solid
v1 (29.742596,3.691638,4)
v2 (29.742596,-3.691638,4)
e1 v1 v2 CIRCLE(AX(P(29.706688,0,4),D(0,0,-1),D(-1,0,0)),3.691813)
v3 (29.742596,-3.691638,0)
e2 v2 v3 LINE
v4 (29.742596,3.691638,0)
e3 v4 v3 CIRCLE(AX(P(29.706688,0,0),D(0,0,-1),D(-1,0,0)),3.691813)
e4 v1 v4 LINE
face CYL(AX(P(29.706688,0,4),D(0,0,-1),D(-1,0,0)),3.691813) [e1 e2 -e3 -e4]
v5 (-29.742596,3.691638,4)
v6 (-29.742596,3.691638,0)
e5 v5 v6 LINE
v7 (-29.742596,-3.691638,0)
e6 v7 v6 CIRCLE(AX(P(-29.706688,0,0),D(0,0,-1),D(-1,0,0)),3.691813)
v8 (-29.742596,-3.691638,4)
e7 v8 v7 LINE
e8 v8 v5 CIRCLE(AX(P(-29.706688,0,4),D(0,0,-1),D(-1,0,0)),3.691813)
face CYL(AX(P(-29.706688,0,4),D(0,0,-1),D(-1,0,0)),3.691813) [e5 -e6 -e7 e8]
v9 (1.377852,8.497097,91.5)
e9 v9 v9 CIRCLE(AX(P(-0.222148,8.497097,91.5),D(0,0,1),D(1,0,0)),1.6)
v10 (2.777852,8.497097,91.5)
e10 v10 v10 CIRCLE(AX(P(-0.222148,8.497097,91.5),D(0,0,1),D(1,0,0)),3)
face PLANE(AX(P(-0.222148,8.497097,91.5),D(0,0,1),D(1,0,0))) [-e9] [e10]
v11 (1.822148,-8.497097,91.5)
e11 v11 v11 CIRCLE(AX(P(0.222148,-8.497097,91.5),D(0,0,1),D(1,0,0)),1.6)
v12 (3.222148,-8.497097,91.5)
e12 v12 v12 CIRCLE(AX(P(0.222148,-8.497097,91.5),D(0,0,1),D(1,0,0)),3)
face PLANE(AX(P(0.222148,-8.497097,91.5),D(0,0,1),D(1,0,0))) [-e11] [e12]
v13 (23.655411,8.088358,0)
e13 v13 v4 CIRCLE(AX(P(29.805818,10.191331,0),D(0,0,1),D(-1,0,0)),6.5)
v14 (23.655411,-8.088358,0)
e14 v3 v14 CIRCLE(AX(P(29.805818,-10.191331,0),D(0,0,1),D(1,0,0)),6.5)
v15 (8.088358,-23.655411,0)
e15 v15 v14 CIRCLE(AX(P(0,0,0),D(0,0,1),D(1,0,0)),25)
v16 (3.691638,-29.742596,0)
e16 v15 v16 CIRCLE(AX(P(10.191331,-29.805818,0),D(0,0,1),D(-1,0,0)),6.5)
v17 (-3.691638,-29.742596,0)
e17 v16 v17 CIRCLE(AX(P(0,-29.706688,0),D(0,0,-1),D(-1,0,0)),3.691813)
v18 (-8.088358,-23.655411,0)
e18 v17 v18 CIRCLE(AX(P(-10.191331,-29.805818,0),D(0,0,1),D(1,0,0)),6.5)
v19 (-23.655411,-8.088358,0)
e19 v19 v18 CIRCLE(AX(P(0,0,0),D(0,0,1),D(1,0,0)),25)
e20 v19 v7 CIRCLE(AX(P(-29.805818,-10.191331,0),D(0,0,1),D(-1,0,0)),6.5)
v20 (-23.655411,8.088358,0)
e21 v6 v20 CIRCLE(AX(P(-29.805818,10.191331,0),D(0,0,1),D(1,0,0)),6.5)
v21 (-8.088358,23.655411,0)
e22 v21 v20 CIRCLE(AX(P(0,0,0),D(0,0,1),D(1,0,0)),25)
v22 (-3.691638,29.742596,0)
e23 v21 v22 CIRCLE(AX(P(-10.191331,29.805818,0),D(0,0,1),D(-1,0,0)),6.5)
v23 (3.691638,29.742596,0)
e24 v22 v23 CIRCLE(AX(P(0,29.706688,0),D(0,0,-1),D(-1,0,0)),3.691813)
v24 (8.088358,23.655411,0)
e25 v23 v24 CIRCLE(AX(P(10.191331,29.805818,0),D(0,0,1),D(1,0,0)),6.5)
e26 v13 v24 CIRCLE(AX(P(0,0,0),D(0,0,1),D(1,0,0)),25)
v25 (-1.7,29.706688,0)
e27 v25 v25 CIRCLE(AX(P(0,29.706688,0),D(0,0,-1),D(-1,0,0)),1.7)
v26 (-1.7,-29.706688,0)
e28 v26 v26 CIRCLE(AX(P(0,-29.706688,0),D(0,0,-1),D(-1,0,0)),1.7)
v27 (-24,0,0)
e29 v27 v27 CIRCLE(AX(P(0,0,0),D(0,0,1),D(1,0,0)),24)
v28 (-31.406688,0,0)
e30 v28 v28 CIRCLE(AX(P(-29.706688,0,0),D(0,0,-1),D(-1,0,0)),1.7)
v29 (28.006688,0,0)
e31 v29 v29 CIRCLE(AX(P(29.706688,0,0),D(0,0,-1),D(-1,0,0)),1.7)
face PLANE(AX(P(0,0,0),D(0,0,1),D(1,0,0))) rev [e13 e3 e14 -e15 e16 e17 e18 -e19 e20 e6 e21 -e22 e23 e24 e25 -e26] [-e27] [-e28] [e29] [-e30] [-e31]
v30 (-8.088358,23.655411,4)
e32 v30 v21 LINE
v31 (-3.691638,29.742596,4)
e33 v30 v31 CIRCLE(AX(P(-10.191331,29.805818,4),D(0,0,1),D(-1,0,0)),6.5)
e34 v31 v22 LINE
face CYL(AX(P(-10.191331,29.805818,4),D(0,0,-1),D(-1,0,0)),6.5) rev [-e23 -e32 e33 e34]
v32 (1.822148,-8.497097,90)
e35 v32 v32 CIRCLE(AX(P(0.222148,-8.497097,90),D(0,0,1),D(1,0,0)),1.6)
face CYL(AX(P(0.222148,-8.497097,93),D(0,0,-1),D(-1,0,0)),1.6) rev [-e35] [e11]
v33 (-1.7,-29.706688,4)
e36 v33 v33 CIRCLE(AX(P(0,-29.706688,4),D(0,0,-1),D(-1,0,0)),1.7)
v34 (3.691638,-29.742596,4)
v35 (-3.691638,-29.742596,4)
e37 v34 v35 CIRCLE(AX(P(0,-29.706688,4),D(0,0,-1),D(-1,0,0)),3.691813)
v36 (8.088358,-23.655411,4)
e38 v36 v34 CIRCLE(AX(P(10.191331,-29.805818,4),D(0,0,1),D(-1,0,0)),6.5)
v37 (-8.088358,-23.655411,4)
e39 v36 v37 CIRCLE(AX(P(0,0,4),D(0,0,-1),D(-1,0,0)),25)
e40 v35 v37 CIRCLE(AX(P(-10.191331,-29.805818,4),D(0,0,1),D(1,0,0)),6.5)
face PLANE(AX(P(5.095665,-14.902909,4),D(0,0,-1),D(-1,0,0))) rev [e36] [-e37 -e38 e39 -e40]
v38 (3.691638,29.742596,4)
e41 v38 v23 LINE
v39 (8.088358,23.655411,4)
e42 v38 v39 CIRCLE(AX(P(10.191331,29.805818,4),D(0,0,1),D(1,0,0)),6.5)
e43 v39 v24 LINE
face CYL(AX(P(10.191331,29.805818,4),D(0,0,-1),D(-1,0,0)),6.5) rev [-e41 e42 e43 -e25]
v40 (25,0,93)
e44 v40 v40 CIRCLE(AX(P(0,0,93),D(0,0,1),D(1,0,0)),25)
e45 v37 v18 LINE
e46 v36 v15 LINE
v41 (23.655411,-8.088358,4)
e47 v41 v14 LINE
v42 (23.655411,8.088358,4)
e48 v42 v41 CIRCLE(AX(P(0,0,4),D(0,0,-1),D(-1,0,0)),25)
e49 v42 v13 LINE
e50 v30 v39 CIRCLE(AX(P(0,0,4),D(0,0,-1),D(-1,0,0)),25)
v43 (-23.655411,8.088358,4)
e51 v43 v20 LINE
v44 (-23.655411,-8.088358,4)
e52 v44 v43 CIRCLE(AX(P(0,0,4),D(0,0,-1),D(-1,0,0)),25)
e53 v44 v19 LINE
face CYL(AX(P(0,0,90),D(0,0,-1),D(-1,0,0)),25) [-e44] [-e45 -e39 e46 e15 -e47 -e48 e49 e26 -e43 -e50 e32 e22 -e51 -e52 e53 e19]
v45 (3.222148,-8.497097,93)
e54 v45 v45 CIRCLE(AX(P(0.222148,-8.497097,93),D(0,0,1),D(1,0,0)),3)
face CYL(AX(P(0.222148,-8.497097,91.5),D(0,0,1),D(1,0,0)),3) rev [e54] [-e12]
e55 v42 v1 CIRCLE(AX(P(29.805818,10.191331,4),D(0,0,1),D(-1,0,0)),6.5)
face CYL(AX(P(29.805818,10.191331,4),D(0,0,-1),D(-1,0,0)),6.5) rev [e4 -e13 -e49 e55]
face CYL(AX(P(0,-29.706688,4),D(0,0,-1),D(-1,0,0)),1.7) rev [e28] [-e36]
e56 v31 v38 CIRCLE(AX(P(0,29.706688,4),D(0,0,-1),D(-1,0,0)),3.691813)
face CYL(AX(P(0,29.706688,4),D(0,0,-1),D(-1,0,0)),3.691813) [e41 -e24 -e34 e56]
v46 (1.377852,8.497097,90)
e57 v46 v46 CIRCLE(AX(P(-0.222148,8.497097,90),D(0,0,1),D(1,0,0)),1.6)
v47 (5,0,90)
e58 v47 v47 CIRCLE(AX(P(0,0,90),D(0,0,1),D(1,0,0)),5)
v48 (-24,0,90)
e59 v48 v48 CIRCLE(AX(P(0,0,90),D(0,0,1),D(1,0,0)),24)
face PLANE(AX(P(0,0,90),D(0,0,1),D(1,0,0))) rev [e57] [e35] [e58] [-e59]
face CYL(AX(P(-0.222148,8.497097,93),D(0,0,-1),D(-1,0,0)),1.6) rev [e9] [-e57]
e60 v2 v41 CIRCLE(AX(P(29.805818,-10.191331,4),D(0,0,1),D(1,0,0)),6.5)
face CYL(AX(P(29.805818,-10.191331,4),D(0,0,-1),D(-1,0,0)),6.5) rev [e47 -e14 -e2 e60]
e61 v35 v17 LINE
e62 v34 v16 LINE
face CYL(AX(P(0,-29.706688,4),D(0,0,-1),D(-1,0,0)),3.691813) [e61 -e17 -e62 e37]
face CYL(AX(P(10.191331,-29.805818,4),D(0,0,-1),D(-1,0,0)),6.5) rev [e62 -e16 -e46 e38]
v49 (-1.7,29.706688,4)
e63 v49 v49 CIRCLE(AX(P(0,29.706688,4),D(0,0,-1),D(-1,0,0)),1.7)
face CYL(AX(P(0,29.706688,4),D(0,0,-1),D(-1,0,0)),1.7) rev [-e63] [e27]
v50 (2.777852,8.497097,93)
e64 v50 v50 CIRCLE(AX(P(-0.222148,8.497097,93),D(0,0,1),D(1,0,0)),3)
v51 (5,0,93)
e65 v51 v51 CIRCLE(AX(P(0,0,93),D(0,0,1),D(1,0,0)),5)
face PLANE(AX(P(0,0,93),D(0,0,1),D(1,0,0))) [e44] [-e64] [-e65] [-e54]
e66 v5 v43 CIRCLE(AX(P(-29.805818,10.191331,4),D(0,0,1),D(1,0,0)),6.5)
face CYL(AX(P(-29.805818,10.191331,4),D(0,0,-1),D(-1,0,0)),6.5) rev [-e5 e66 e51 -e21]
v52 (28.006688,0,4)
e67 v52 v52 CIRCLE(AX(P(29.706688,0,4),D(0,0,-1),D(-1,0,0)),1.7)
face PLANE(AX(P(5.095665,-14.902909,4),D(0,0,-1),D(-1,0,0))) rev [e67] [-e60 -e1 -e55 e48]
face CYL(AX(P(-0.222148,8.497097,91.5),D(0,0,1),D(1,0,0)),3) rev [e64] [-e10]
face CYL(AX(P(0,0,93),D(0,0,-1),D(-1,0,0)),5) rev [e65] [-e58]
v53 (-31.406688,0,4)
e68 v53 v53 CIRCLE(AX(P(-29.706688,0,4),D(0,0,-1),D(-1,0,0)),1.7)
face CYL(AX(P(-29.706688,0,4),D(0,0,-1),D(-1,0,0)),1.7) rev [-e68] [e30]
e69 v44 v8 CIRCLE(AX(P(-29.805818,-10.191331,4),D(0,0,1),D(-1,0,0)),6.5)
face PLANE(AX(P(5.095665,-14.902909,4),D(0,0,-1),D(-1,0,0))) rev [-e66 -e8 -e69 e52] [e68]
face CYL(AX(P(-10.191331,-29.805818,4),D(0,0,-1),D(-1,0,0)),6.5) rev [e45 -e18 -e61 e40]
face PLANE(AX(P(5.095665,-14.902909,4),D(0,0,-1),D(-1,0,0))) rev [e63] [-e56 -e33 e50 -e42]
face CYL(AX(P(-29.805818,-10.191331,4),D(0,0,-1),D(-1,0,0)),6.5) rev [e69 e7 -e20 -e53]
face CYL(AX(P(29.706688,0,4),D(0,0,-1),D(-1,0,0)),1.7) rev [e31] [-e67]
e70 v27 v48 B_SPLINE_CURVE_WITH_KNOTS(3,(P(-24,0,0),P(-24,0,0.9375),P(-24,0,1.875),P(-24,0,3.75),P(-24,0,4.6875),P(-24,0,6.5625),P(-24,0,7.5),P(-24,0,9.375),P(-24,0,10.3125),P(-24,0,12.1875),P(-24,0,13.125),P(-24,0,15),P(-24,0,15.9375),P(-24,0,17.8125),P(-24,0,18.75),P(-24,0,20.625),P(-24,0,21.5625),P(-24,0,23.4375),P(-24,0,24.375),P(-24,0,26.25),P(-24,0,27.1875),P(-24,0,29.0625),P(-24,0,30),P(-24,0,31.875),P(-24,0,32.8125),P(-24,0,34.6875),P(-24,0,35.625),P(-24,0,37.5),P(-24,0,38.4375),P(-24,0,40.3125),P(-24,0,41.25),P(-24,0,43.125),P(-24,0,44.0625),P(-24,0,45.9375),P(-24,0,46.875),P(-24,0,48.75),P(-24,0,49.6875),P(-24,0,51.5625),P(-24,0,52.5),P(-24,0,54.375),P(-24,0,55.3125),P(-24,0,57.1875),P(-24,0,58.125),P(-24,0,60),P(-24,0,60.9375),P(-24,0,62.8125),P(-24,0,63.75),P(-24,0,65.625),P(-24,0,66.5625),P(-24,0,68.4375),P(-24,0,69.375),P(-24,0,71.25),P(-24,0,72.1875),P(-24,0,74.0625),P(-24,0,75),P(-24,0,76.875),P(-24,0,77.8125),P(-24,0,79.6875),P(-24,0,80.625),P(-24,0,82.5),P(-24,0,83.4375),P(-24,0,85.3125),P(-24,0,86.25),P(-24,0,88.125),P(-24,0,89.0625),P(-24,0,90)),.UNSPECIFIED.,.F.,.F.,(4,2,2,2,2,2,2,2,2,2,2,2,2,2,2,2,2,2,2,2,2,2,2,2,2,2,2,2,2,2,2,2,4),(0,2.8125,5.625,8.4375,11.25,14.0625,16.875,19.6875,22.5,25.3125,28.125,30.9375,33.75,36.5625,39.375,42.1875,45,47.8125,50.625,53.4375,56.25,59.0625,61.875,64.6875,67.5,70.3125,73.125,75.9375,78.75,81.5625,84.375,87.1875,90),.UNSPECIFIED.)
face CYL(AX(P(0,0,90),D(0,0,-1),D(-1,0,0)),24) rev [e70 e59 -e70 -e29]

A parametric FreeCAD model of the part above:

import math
import FreeCAD as App
import Part
import Sketcher
from FreeCAD import Vector

doc = App.newDocument("Part")
body = doc.addObject("PartDesign::Body", "Body")

# Sketch on XY plane
sketch1 = body.newObject("Sketcher::SketchObject", "Sketch")
sketch1.AttachmentSupport = (doc.getObject("XY_Plane"), [""])
sketch1.MapMode = "FlatFace"
sketch1.addGeometry(Part.Circle(Vector(0, 0, 0), Vector(0, 0, 1), 25), False)
sketch1.addGeometry(Part.Circle(Vector(0, 0, 0), Vector(0, 0, 1), 24), False)
sketch1.addConstraint(Sketcher.Constraint("Coincident", 0, 3, -1, 1))
sketch1.addConstraint(Sketcher.Constraint("Coincident", 1, 3, -1, 1))
sketch1.addConstraint(Sketcher.Constraint("Diameter", 0, 50.0))
sketch1.addConstraint(Sketcher.Constraint("Diameter", 1, 48.0))
pad1 = body.newObject("PartDesign::Pad", "Pad")
pad1.Profile = sketch1
pad1.Length = 90

# Sketch on XY plane
sketch2 = body.newObject("Sketcher::SketchObject", "Sketch001")
sketch2.AttachmentSupport = (doc.getObject("XY_Plane"), [""])
sketch2.MapMode = "FlatFace"
sketch2.AttachmentOffset = App.Placement(Vector(0, 0, 90), App.Rotation())
sketch2.addGeometry(Part.Circle(Vector(0, 0, 0), Vector(0, 0, 1), 25), False)
sketch2.addGeometry(Part.Circle(Vector(-0.2, 8.5, 0), Vector(0, 0, 1), 1.6), False)
sketch2.addGeometry(Part.Circle(Vector(0.2, -8.5, 0), Vector(0, 0, 1), 1.6), False)
sketch2.addGeometry(Part.Circle(Vector(0, 0, 0), Vector(0, 0, 1), 5), False)
sketch2.addConstraint(Sketcher.Constraint("Coincident", 0, 3, -1, 1))
sketch2.addConstraint(Sketcher.Constraint("Coincident", 3, 3, -1, 1))
sketch2.addConstraint(Sketcher.Constraint("Equal", 1, 2))
sketch2.addConstraint(Sketcher.Constraint("Symmetric", 1, 3, 2, 3, -1, 1))
sketch2.addConstraint(Sketcher.Constraint("Diameter", 0, 50.0))
sketch2.addConstraint(Sketcher.Constraint("Diameter", 3, 10.0))
sketch2.addConstraint(Sketcher.Constraint("Diameter", 1, 3.2))
sketch2.addConstraint(Sketcher.Constraint("DistanceX", 1, 3, -1, 1, 0.222148))
sketch2.addConstraint(Sketcher.Constraint("DistanceY", -1, 1, 1, 3, 8.497097))
pad2 = body.newObject("PartDesign::Pad", "Pad001")
pad2.Profile = sketch2
pad2.Length = 3

# Sketch on XY plane
sketch3 = body.newObject("Sketcher::SketchObject", "Sketch002")
sketch3.AttachmentSupport = (doc.getObject("XY_Plane"), [""])
sketch3.MapMode = "FlatFace"
sketch3.AttachmentOffset = App.Placement(Vector(0, 0, 93), App.Rotation())
sketch3.addGeometry(Part.Circle(Vector(-0.2, 8.5, 0), Vector(0, 0, 1), 3), False)
sketch3.addGeometry(Part.Circle(Vector(0.2, -8.5, 0), Vector(0, 0, 1), 3), False)
sketch3.addConstraint(Sketcher.Constraint("Equal", 0, 1))
sketch3.addConstraint(Sketcher.Constraint("Symmetric", 0, 3, 1, 3, -1, 1))
sketch3.addConstraint(Sketcher.Constraint("Diameter", 0, 6.0))
sketch3.addConstraint(Sketcher.Constraint("DistanceX", 0, 3, -1, 1, 0.222148))
sketch3.addConstraint(Sketcher.Constraint("DistanceY", -1, 1, 0, 3, 8.497097))
pocket1 = body.newObject("PartDesign::Pocket", "Pocket")
pocket1.Profile = sketch3
pocket1.Length = 1.5

# Sketch on XY plane
sketch4 = body.newObject("Sketcher::SketchObject", "Sketch003")
sketch4.AttachmentSupport = (doc.getObject("XY_Plane"), [""])
sketch4.MapMode = "FlatFace"
sketch4.addGeometry(Part.ArcOfCircle(Part.Circle(Vector(0, 0, 0), Vector(0, 0, 1), 25), math.radians(-161), math.radians(-109)), False)
sketch4.addGeometry(Part.ArcOfCircle(Part.Circle(Vector(-29.8, -10.2, 0), Vector(0, 0, 1), 6.5), math.radians(19), math.radians(89)), False)
sketch4.addGeometry(Part.ArcOfCircle(Part.Circle(Vector(-29.7, 0, 0), Vector(0, 0, 1), 3.7), math.radians(91), math.radians(269)), False)
sketch4.addGeometry(Part.ArcOfCircle(Part.Circle(Vector(-29.8, 10.2, 0), Vector(0, 0, 1), 6.5), math.radians(-89), math.radians(-19)), False)
sketch4.addGeometry(Part.ArcOfCircle(Part.Circle(Vector(0, 0, 0), Vector(0, 0, 1), 25), math.radians(109), math.radians(161)), False)
sketch4.addGeometry(Part.ArcOfCircle(Part.Circle(Vector(-10.2, 29.8, 0), Vector(0, 0, 1), 6.5), math.radians(-71), math.radians(-1)), False)
sketch4.addGeometry(Part.ArcOfCircle(Part.Circle(Vector(0, 29.7, 0), Vector(0, 0, 1), 3.7), math.radians(1), math.radians(179)), False)
sketch4.addGeometry(Part.ArcOfCircle(Part.Circle(Vector(10.2, 29.8, 0), Vector(0, 0, 1), 6.5), math.radians(-179), math.radians(-109)), False)
sketch4.addGeometry(Part.ArcOfCircle(Part.Circle(Vector(0, 0, 0), Vector(0, 0, 1), 25), math.radians(19), math.radians(71)), False)
sketch4.addGeometry(Part.ArcOfCircle(Part.Circle(Vector(29.8, 10.2, 0), Vector(0, 0, 1), 6.5), math.radians(-161), math.radians(-91)), False)
sketch4.addGeometry(Part.ArcOfCircle(Part.Circle(Vector(29.7, 0, 0), Vector(0, 0, 1), 3.7), math.radians(-89), math.radians(89)), False)
sketch4.addGeometry(Part.ArcOfCircle(Part.Circle(Vector(29.8, -10.2, 0), Vector(0, 0, 1), 6.5), math.radians(91), math.radians(161)), False)
sketch4.addGeometry(Part.ArcOfCircle(Part.Circle(Vector(0, 0, 0), Vector(0, 0, 1), 25), math.radians(-71), math.radians(-19)), False)
sketch4.addGeometry(Part.ArcOfCircle(Part.Circle(Vector(10.2, -29.8, 0), Vector(0, 0, 1), 6.5), math.radians(109), math.radians(179)), False)
sketch4.addGeometry(Part.ArcOfCircle(Part.Circle(Vector(0, -29.7, 0), Vector(0, 0, 1), 3.7), math.radians(-179), math.radians(-1)), False)
sketch4.addGeometry(Part.ArcOfCircle(Part.Circle(Vector(-10.2, -29.8, 0), Vector(0, 0, 1), 6.5), math.radians(1), math.radians(71)), False)
sketch4.addGeometry(Part.Circle(Vector(0, 29.7, 0), Vector(0, 0, 1), 1.7), False)
sketch4.addGeometry(Part.Circle(Vector(-29.7, 0, 0), Vector(0, 0, 1), 1.7), False)
sketch4.addGeometry(Part.Circle(Vector(0, 0, 0), Vector(0, 0, 1), 24), False)
sketch4.addGeometry(Part.Circle(Vector(29.7, 0, 0), Vector(0, 0, 1), 1.7), False)
sketch4.addGeometry(Part.Circle(Vector(0, -29.7, 0), Vector(0, 0, 1), 1.7), False)
sketch4.addConstraint(Sketcher.Constraint("Tangent", 0, 1, 1, 1))
sketch4.addConstraint(Sketcher.Constraint("Tangent", 1, 2, 2, 2))
sketch4.addConstraint(Sketcher.Constraint("Tangent", 2, 1, 3, 1))
sketch4.addConstraint(Sketcher.Constraint("Tangent", 3, 2, 4, 2))
sketch4.addConstraint(Sketcher.Constraint("Tangent", 4, 1, 5, 1))
sketch4.addConstraint(Sketcher.Constraint("Tangent", 5, 2, 6, 2))
sketch4.addConstraint(Sketcher.Constraint("Tangent", 6, 1, 7, 1))
sketch4.addConstraint(Sketcher.Constraint("Tangent", 7, 2, 8, 2))
sketch4.addConstraint(Sketcher.Constraint("Tangent", 8, 1, 9, 1))
sketch4.addConstraint(Sketcher.Constraint("Tangent", 9, 2, 10, 2))
sketch4.addConstraint(Sketcher.Constraint("Tangent", 10, 1, 11, 1))
sketch4.addConstraint(Sketcher.Constraint("Tangent", 11, 2, 12, 2))
sketch4.addConstraint(Sketcher.Constraint("Tangent", 12, 1, 13, 1))
sketch4.addConstraint(Sketcher.Constraint("Tangent", 13, 2, 14, 2))
sketch4.addConstraint(Sketcher.Constraint("Tangent", 14, 1, 15, 1))
sketch4.addConstraint(Sketcher.Constraint("Tangent", 15, 2, 0, 2))
sketch4.addConstraint(Sketcher.Constraint("Coincident", 0, 3, -1, 1))
sketch4.addConstraint(Sketcher.Constraint("Coincident", 4, 3, -1, 1))
sketch4.addConstraint(Sketcher.Constraint("Coincident", 8, 3, -1, 1))
sketch4.addConstraint(Sketcher.Constraint("Coincident", 12, 3, -1, 1))
sketch4.addConstraint(Sketcher.Constraint("Coincident", 18, 3, -1, 1))
sketch4.addConstraint(Sketcher.Constraint("Coincident", 16, 3, 6, 3))
sketch4.addConstraint(Sketcher.Constraint("Coincident", 17, 3, 2, 3))
sketch4.addConstraint(Sketcher.Constraint("Coincident", 19, 3, 10, 3))
sketch4.addConstraint(Sketcher.Constraint("Coincident", 20, 3, 14, 3))
sketch4.addConstraint(Sketcher.Constraint("Equal", 1, 3))
sketch4.addConstraint(Sketcher.Constraint("Equal", 0, 4))
sketch4.addConstraint(Sketcher.Constraint("Equal", 3, 5))
sketch4.addConstraint(Sketcher.Constraint("Equal", 2, 6))
sketch4.addConstraint(Sketcher.Constraint("Equal", 5, 7))
sketch4.addConstraint(Sketcher.Constraint("Equal", 4, 8))
sketch4.addConstraint(Sketcher.Constraint("Equal", 7, 9))
sketch4.addConstraint(Sketcher.Constraint("Equal", 6, 10))
sketch4.addConstraint(Sketcher.Constraint("Equal", 9, 11))
sketch4.addConstraint(Sketcher.Constraint("Equal", 8, 12))
sketch4.addConstraint(Sketcher.Constraint("Equal", 11, 13))
sketch4.addConstraint(Sketcher.Constraint("Equal", 10, 14))
sketch4.addConstraint(Sketcher.Constraint("Equal", 13, 15))
sketch4.addConstraint(Sketcher.Constraint("Equal", 16, 17))
sketch4.addConstraint(Sketcher.Constraint("Equal", 17, 19))
sketch4.addConstraint(Sketcher.Constraint("Equal", 19, 20))
sketch4.addConstraint(Sketcher.Constraint("Symmetric", 2, 3, 10, 3, -1, 1))
sketch4.addConstraint(Sketcher.Constraint("Symmetric", 6, 3, 14, 3, -1, 1))
sketch4.addConstraint(Sketcher.Constraint("PointOnObject", 2, 3, -1))
sketch4.addConstraint(Sketcher.Constraint("PointOnObject", 6, 3, -2))
sketch4.addConstraint(Sketcher.Constraint("Diameter", 18, 48.0))
sketch4.addConstraint(Sketcher.Constraint("Radius", 0, 25.0))
sketch4.addConstraint(Sketcher.Constraint("Diameter", 16, 3.4))
sketch4.addConstraint(Sketcher.Constraint("Radius", 1, 6.5))
sketch4.addConstraint(Sketcher.Constraint("Radius", 2, 3.691813))
sketch4.addConstraint(Sketcher.Constraint("DistanceY", 1, 3, -1, 1, 10.191331))
sketch4.addConstraint(Sketcher.Constraint("DistanceX", 5, 3, -1, 1, 10.191331))
pad3 = body.newObject("PartDesign::Pad", "Pad002")
pad3.Profile = sketch4
pad3.Length = 4

doc.recompute()
